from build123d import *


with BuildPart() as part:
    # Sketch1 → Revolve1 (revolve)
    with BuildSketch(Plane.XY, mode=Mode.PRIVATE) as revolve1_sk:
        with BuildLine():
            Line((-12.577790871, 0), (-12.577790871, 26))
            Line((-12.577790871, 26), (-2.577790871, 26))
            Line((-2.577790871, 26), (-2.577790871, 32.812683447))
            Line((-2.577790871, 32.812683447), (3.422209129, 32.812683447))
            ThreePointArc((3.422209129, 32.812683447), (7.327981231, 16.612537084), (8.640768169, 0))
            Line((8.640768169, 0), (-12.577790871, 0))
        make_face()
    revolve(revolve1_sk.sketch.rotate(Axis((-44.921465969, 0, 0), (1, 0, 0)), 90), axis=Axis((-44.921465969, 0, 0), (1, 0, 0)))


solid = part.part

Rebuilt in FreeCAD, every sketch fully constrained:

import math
import FreeCAD as App
import Part
import Sketcher
from FreeCAD import Vector
Q = App.Units.Quantity

doc = App.newDocument("Part")
body = doc.addObject("PartDesign::Body", "Body")

# Sketch on XY plane
sketch1 = body.newObject("Sketcher::SketchObject", "Sketch")
sketch1.AttachmentSupport = (doc.getObject("XY_Plane"), [""])
sketch1.MapMode = "FlatFace"
sketch1.addGeometry([
    Part.LineSegment(Vector(-13, 26, 0), Vector(-13, 0, 0)),  # 0
    Part.LineSegment(Vector(-13, 0, 0), Vector(9, 0, 0)),  # 1
    Part.ArcOfCircle(Part.Circle(Vector(-97, 0, 0), Vector(0, 0, 1), 106), math.radians(0), math.radians(18.07)),  # 2
    Part.LineSegment(Vector(3, 33, 0), Vector(-3, 33, 0)),  # 3
    Part.LineSegment(Vector(-3, 33, 0), Vector(-3, 26, 0)),  # 4
    Part.LineSegment(Vector(-3, 26, 0), Vector(-13, 26, 0)),  # 5
], False)
sketch1.addConstraint([
    Sketcher.Constraint("Coincident", 0, 2, 1, 1),
    Sketcher.Constraint("Coincident", 1, 2, 2, 1),
    Sketcher.Constraint("Coincident", 2, 2, 3, 1),
    Sketcher.Constraint("Coincident", 3, 2, 4, 1),
    Sketcher.Constraint("Coincident", 4, 2, 5, 1),
    Sketcher.Constraint("Coincident", 5, 2, 0, 1),
    Sketcher.Constraint("Vertical", 0),
    Sketcher.Constraint("Horizontal", 1),
    Sketcher.Constraint("Horizontal", 3),
    Sketcher.Constraint("Vertical", 4),
    Sketcher.Constraint("Horizontal", 5),
    Sketcher.Constraint("PointOnObject", 2, 3, -1),
    Sketcher.Constraint("PointOnObject", 0, 2, -1),
    Sketcher.Constraint("DistanceX", 3, 2, 3, 1, Q("6 mm")),
    Sketcher.Constraint("DistanceX", 5, 2, 5, 1, Q("10 mm")),
    Sketcher.Constraint("DistanceY", 0, 2, 0, 1, Q("26 mm")),
    Sketcher.Constraint("Radius", 2, Q("105.767277 mm")),
    Sketcher.Constraint("DistanceX", 1, 1, 1, 2, Q("21.218559 mm")),
    Sketcher.Constraint("DistanceX", 2, 3, -1, 1, Q("97.126508 mm")),
])
revolution = body.newObject("PartDesign::Revolution", "Revolution")
revolution.Profile = sketch1
revolution.ReferenceAxis = (sketch1, ["H_Axis"])
revolution.Angle = 360

doc.recompute()
